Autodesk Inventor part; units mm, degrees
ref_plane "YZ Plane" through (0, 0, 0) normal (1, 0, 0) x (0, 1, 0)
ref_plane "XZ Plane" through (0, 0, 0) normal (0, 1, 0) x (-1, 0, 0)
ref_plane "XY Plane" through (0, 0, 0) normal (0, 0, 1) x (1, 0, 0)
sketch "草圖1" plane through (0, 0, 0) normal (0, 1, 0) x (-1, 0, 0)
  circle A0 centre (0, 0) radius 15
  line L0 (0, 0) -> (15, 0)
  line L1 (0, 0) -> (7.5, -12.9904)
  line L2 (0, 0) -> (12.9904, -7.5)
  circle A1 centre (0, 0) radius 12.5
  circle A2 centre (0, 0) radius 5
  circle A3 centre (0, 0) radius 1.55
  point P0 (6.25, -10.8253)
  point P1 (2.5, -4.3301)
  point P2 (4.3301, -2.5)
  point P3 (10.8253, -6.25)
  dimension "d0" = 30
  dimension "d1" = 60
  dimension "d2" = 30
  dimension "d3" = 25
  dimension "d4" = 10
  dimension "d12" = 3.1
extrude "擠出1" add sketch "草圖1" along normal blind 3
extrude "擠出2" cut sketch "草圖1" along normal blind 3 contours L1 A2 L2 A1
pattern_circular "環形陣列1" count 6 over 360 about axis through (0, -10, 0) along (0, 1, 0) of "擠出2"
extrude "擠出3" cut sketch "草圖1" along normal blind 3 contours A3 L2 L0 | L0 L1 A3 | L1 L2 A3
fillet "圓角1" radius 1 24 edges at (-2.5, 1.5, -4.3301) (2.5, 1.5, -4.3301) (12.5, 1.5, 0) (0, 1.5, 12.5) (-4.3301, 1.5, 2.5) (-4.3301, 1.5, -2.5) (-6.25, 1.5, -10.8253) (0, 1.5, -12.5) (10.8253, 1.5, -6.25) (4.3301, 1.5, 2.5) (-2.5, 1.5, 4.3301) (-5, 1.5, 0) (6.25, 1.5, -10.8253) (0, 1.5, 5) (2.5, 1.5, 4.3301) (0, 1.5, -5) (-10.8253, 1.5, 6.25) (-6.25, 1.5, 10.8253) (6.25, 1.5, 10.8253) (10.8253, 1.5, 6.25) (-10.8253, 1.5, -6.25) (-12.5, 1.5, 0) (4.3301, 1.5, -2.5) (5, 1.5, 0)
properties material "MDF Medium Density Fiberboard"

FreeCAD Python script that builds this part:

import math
import FreeCAD as App
import Part
import Sketcher

V = App.Vector
Q = App.Units.Quantity


def edges_at(feature, points):
    """Names of the edges that pass closest to the given points."""
    edges = feature.Shape.Edges
    near = lambda p: min(range(len(edges)), key=lambda i: edges[i].distToShape(Part.Vertex(*p))[0])
    return sorted({f"Edge{near(p) + 1}" for p in points})

doc = App.newDocument("Part")
body = doc.addObject("PartDesign::Body", "Body")

sketch1 = doc.addObject("Sketcher::SketchObject", "Sketch")
body.addObject(sketch1)
sketch1.AttachmentSupport = (doc.XZ_Plane, [""])
sketch1.MapMode = "FlatFace"
sketch1.addGeometry(Part.Circle(V(0, 0, 0), V(0, 0, 1), 15), False)
sketch1.addConstraint([
    Sketcher.Constraint("Coincident", 0, 3, -1, 1),
    Sketcher.Constraint("Diameter", 0, 30.0),
])
pad1 = doc.addObject("PartDesign::Pad", "Pad")
body.addObject(pad1)
pad1.Profile = sketch1
pad1.Length = 3
pad1.Reversed = True

sketch2 = doc.addObject("Sketcher::SketchObject", "Sketch001")
body.addObject(sketch2)
sketch2.AttachmentSupport = (doc.XZ_Plane, [""])
sketch2.MapMode = "FlatFace"
sketch2.addGeometry([
    Part.LineSegment(V(-2.499997, -4.330129, 0), V(-6.249993, -10.825321, 0)),
    Part.ArcOfCircle(Part.Circle(V(0, 0, 0), V(0, 0, 1), 12.5), math.radians(-150.000036), math.radians(-119.999964)),
    Part.LineSegment(V(-10.825321, -6.249993, 0), V(-4.330129, -2.499997, 0)),
    Part.ArcOfCircle(Part.Circle(V(0, 0, 0), V(0, 0, 1), 5), math.radians(-150.000036), math.radians(-119.999964)),
], False)
sketch2.addConstraint([
    Sketcher.Constraint("Coincident", 0, 2, 1, 2),
    Sketcher.Constraint("Coincident", 1, 1, 2, 1),
    Sketcher.Constraint("Coincident", 2, 2, 3, 1),
    Sketcher.Constraint("Coincident", 3, 2, 0, 1),
    Sketcher.Constraint("Coincident", 1, 3, -1, 1),
    Sketcher.Constraint("Coincident", 3, 3, -1, 1),
    Sketcher.Constraint("Radius", 3, 5.0),
    Sketcher.Constraint("Radius", 1, 12.5),
    Sketcher.Constraint("Angle", 2, Q("30 deg")),
    Sketcher.Constraint("Angle", 0, Q("-120 deg")),
    Sketcher.Constraint("DistanceY", 2, 2, -1, 1, 2.5),
    Sketcher.Constraint("DistanceX", 3, 2, -1, 1, 2.5),
])
pocket1 = doc.addObject("PartDesign::Pocket", "Pocket")
body.addObject(pocket1)
pocket1.Profile = sketch2
pocket1.Length = 3
doc.recompute()

polarpattern = doc.addObject("PartDesign::PolarPattern", "PolarPattern")
body.addObject(polarpattern)
polarpattern.Originals = [pocket1]
polarpattern.Axis = (doc.Y_Axis, [""])
polarpattern.Angle = 360
polarpattern.Occurrences = 6
body.Tip = polarpattern

sketch3 = doc.addObject("Sketcher::SketchObject", "Sketch002")
body.addObject(sketch3)
sketch3.AttachmentSupport = (doc.XZ_Plane, [""])
sketch3.MapMode = "FlatFace"
sketch3.addGeometry(Part.Circle(V(0, 0, 0), V(0, 0, 1), 1.55), False)
sketch3.addConstraint([
    Sketcher.Constraint("Coincident", 0, 3, -1, 1),
    Sketcher.Constraint("Diameter", 0, 3.1),
])
pocket2 = doc.addObject("PartDesign::Pocket", "Pocket001")
body.addObject(pocket2)
pocket2.Profile = sketch3
pocket2.Length = 3
doc.recompute()

fillet = doc.addObject("PartDesign::Fillet", "Fillet")
body.addObject(fillet)
fillet.Base = (pocket2, edges_at(pocket2, [
    (-2.5, 1.5, -4.33),
    (2.5, 1.5, -4.33),
    (12.5, 1.5, 0),
    (0, 1.5, 12.5),
    (-4.33, 1.5, 2.5),
    (-4.33, 1.5, -2.5),
    (-6.25, 1.5, -10.825),
    (0, 1.5, -12.5),
    (10.825, 1.5, -6.25),
    (4.33, 1.5, 2.5),
    (-2.5, 1.5, 4.33),
    (-5, 1.5, 0),
    (6.25, 1.5, -10.825),
    (0, 1.5, 5),
    (2.5, 1.5, 4.33),
    (0, 1.5, -5),
    (-10.825, 1.5, 6.25),
    (-6.25, 1.5, 10.825),
    (6.25, 1.5, 10.825),
    (10.825, 1.5, 6.25),
    (-10.825, 1.5, -6.25),
    (-12.5, 1.5, 0),
    (4.33, 1.5, -2.5),
    (5, 1.5, 0),
]))
fillet.Radius = 1

doc.recompute()
